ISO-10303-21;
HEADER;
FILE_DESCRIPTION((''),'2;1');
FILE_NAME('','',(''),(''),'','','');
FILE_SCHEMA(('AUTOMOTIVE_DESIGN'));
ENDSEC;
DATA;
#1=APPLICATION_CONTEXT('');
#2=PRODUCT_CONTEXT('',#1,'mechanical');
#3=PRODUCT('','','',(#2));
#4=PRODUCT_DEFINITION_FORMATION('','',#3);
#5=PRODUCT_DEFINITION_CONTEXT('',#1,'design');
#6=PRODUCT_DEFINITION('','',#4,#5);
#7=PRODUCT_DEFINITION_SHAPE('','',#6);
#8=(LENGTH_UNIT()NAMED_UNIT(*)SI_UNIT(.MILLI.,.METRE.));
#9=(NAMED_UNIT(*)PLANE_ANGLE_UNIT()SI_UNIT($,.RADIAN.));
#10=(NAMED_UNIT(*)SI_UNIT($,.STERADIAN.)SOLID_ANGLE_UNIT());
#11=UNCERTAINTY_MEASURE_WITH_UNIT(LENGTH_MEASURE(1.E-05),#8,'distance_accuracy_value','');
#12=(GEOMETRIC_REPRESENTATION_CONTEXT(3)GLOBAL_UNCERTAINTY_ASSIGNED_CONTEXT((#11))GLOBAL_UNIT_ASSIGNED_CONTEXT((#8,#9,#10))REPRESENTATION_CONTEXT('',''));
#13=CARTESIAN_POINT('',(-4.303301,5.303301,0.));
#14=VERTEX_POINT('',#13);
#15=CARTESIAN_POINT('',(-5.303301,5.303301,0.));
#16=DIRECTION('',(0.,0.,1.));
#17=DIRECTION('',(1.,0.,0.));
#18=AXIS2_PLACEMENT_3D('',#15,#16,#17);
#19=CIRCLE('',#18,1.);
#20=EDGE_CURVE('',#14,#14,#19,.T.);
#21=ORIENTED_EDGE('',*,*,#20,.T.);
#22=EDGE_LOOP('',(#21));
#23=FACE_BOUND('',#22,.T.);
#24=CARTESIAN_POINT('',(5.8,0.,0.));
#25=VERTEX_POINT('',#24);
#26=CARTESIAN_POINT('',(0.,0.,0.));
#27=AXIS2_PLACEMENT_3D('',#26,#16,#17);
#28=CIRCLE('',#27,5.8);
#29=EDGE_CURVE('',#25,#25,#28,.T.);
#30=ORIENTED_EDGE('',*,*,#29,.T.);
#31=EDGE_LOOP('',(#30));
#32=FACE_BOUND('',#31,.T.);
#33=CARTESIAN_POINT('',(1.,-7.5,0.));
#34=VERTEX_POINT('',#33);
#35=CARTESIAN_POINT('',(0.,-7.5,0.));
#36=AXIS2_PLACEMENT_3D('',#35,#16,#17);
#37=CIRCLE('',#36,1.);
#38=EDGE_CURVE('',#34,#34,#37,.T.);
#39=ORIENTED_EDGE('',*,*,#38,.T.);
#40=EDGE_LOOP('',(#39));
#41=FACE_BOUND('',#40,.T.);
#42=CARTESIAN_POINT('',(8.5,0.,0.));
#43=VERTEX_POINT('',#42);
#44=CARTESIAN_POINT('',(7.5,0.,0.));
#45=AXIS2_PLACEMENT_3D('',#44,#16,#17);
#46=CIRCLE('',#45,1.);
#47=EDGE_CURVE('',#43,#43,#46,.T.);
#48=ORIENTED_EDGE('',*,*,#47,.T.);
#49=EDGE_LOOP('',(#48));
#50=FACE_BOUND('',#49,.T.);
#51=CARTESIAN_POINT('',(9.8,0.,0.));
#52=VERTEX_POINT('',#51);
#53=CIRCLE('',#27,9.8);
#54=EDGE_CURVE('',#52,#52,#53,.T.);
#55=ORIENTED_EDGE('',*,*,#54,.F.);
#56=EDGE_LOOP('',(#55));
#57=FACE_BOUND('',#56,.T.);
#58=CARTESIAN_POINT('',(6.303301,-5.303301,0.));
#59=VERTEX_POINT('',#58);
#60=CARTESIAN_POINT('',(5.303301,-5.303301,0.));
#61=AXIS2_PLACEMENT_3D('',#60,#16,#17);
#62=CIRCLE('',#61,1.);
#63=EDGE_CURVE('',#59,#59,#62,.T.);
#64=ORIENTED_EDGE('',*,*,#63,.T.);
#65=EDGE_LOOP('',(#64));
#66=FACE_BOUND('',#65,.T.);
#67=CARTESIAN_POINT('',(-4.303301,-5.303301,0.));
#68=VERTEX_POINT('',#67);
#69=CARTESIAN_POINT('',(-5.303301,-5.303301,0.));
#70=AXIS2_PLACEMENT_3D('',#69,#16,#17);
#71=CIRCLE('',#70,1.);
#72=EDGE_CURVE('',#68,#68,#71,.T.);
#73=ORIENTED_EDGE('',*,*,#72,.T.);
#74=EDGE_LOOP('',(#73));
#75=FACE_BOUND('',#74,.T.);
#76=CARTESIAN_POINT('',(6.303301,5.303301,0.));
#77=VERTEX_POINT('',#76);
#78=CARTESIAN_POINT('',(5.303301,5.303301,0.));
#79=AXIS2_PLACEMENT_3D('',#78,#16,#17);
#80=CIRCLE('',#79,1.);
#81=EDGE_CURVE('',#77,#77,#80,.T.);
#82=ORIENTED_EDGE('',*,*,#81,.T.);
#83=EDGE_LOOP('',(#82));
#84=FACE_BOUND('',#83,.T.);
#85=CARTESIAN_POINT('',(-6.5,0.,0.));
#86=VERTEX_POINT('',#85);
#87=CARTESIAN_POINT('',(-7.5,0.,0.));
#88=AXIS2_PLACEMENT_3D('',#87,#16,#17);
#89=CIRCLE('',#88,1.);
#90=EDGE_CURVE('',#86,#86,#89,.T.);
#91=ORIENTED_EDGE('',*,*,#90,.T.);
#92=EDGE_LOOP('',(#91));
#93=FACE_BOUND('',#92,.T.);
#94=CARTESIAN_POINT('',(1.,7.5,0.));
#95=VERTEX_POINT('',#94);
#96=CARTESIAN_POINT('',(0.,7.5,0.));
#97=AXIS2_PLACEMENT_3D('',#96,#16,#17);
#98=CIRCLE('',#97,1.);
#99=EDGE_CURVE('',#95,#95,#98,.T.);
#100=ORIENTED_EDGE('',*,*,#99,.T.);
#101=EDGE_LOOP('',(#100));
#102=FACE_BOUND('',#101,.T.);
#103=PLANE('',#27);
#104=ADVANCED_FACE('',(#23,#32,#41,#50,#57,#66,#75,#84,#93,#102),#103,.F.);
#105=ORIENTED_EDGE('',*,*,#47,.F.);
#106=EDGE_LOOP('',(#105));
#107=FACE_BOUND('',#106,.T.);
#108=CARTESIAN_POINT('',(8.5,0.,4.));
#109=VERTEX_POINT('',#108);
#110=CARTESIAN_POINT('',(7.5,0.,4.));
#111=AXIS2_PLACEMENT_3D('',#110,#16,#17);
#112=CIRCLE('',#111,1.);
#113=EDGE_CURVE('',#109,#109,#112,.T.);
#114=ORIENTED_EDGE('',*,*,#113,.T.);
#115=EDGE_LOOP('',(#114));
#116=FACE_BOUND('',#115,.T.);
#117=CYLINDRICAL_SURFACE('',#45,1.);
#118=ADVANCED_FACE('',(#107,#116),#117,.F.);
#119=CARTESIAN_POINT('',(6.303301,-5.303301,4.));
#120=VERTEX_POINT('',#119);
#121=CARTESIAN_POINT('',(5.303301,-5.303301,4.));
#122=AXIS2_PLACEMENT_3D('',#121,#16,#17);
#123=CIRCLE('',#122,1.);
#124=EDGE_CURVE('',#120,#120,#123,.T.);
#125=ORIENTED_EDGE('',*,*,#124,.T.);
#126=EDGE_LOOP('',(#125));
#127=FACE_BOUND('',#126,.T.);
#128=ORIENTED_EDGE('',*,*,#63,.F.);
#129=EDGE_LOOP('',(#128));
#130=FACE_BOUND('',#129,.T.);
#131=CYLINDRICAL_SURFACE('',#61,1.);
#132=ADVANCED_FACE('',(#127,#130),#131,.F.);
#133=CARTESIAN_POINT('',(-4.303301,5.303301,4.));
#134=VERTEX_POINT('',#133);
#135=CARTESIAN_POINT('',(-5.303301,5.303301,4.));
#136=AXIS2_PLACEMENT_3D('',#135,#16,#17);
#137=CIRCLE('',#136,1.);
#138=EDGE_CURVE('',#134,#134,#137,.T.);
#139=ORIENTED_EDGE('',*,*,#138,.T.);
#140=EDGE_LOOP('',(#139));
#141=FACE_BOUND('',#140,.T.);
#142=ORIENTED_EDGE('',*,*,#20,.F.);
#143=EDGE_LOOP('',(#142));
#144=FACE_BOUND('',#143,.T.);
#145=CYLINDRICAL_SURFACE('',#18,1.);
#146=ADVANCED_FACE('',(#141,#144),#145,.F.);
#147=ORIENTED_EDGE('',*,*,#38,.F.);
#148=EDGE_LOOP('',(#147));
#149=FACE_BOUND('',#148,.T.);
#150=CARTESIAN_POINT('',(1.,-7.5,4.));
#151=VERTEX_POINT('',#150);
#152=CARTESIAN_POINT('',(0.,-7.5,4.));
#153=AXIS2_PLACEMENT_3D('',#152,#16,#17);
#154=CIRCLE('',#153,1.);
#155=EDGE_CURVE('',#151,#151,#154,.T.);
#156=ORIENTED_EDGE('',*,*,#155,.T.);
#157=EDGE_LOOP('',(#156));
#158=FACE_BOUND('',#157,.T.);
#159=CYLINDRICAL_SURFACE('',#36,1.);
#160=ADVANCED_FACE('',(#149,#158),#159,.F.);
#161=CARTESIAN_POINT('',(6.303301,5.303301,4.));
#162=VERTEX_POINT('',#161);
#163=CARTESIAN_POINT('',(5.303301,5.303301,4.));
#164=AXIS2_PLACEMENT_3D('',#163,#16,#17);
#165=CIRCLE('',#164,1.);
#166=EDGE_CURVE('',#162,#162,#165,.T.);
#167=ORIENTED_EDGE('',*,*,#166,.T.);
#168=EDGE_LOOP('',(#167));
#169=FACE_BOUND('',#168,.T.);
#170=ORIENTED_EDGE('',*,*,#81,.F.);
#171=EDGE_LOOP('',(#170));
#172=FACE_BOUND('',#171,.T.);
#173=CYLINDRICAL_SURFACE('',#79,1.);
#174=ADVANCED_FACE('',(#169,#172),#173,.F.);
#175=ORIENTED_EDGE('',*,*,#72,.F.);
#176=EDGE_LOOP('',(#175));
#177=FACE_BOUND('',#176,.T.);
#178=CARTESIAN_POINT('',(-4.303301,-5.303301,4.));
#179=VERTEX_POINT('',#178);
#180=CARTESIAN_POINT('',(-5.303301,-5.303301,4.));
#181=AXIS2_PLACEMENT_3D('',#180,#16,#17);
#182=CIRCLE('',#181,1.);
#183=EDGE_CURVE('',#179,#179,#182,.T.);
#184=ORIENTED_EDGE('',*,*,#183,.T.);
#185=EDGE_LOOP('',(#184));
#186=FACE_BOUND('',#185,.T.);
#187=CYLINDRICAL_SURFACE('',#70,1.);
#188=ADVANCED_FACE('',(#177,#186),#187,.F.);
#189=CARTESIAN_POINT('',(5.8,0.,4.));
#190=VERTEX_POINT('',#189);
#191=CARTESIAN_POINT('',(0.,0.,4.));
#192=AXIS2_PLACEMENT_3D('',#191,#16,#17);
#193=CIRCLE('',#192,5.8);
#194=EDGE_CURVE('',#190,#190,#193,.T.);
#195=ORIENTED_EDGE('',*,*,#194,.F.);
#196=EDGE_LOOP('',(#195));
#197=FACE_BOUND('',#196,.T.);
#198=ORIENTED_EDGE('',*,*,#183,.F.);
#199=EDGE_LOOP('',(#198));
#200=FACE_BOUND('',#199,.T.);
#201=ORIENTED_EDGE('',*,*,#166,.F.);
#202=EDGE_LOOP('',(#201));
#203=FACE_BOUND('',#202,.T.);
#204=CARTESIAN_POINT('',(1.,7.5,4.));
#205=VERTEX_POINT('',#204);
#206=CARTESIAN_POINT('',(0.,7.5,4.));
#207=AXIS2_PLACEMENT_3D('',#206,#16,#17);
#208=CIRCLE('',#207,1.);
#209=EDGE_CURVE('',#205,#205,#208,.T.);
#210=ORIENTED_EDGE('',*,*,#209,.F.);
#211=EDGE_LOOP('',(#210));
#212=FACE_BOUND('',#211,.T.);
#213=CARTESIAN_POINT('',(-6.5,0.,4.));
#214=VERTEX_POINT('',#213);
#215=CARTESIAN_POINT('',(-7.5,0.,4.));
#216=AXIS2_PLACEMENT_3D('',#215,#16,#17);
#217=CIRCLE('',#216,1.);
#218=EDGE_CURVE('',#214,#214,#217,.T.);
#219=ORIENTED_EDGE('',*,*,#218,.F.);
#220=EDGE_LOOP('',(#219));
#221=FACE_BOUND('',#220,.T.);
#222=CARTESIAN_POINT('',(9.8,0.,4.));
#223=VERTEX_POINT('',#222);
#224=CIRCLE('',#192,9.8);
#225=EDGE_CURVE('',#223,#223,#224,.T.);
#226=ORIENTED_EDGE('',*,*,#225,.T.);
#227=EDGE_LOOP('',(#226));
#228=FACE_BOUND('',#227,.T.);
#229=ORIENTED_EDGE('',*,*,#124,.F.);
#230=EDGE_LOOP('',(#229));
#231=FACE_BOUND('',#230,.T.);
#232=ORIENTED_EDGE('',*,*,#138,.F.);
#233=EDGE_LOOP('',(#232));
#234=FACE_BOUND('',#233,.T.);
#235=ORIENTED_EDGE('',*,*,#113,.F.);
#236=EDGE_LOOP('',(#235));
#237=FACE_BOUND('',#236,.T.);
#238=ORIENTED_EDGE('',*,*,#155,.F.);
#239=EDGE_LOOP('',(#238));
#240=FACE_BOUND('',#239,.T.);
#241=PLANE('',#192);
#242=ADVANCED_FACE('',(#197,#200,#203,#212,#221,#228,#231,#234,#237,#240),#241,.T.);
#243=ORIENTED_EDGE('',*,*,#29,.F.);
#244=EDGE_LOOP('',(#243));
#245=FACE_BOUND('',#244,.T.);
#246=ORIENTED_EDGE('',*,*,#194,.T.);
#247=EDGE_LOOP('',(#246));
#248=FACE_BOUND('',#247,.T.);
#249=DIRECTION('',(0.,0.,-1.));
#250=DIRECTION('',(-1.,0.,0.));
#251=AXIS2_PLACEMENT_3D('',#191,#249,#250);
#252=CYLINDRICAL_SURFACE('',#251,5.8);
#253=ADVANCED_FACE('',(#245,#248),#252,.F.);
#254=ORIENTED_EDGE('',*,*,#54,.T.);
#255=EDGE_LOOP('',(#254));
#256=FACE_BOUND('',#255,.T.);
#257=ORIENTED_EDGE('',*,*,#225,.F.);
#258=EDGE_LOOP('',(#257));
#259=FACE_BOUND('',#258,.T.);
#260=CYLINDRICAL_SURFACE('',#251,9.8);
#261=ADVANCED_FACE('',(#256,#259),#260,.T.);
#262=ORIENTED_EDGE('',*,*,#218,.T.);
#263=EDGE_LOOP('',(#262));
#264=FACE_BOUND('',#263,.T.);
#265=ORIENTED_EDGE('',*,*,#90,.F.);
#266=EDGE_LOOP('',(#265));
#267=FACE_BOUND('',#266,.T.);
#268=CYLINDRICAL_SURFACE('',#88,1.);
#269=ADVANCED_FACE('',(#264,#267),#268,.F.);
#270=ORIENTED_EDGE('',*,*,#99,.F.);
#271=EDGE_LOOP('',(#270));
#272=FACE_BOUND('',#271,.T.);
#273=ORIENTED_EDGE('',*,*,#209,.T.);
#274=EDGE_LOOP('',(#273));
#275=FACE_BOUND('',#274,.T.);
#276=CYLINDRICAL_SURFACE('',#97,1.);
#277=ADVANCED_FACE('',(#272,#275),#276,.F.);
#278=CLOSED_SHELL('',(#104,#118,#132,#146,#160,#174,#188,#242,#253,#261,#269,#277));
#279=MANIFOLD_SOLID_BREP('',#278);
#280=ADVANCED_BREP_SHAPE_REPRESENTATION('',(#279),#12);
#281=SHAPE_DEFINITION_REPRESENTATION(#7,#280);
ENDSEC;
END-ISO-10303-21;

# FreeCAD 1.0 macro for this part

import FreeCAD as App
import Part
import Sketcher
Q = App.Units.Quantity

doc = App.newDocument("Part")
body = doc.addObject("PartDesign::Body", "Body")

sketch1 = body.newObject("Sketcher::SketchObject", "Sketch")
sketch1.AttachmentSupport = (doc.getObject("XY_Plane"), [""])
sketch1.MapMode = "FlatFace"
sketch1.addGeometry([
    Part.Circle(App.Vector(0, 0, 0), App.Vector(0, 0, 1), 9.8),
    Part.Circle(App.Vector(0, 0, 0), App.Vector(0, 0, 1), 5.8),
], False)
sketch1.addConstraint([
    Sketcher.Constraint("Coincident", 0, 3, -1, 1),
    Sketcher.Constraint("Coincident", 1, 3, -1, 1),
    Sketcher.Constraint("Diameter", 0, Q("19.6 mm")),
    Sketcher.Constraint("Diameter", 1, Q("11.6 mm")),
])
pad1 = body.newObject("PartDesign::Pad", "Pad")
pad1.Profile = sketch1
pad1.Length = 4

sketch2 = body.newObject("Sketcher::SketchObject", "Sketch001")
sketch2.AttachmentSupport = (doc.getObject("XY_Plane"), [""])
sketch2.MapMode = "FlatFace"
sketch2.AttachmentOffset = App.Placement(App.Vector(0, 0, 4), App.Rotation())
sketch2.addGeometry([
    Part.Circle(App.Vector(0, 7.5, 0), App.Vector(0, 0, 1), 1),
    Part.Circle(App.Vector(7.5, 0, 0), App.Vector(0, 0, 1), 1),
    Part.Circle(App.Vector(0, -7.5, 0), App.Vector(0, 0, 1), 1),
    Part.Circle(App.Vector(-7.5, 0, 0), App.Vector(0, 0, 1), 1),
    Part.Circle(App.Vector(-5.303301, 5.303301, 0), App.Vector(0, 0, 1), 1),
    Part.Circle(App.Vector(5.303301, 5.303301, 0), App.Vector(0, 0, 1), 1),
    Part.Circle(App.Vector(5.303301, -5.303301, 0), App.Vector(0, 0, 1), 1),
    Part.Circle(App.Vector(-5.303301, -5.303301, 0), App.Vector(0, 0, 1), 1),
], False)
sketch2.addConstraint([
    Sketcher.Constraint("Equal", 0, 1),
    Sketcher.Constraint("Equal", 1, 2),
    Sketcher.Constraint("Equal", 2, 3),
    Sketcher.Constraint("Equal", 3, 4),
    Sketcher.Constraint("Equal", 4, 5),
    Sketcher.Constraint("Equal", 5, 6),
    Sketcher.Constraint("Equal", 6, 7),
    Sketcher.Constraint("Symmetric", 0, 3, 2, 3, -1, 1),
    Sketcher.Constraint("Symmetric", 1, 3, 3, 3, -1, 1),
    Sketcher.Constraint("Symmetric", 4, 3, 6, 3, -1, 1),
    Sketcher.Constraint("Symmetric", 5, 3, 7, 3, -1, 1),
    Sketcher.Constraint("Symmetric", 4, 3, 5, 3, -2),
    Sketcher.Constraint("PointOnObject", 0, 3, -2),
    Sketcher.Constraint("PointOnObject", 1, 3, -1),
    Sketcher.Constraint("Diameter", 0, Q("2 mm")),
    Sketcher.Constraint("DistanceY", 2, 3, 0, 3, Q("15 mm")),
    Sketcher.Constraint("DistanceX", 3, 3, 1, 3, Q("15 mm")),
    Sketcher.Constraint("DistanceX", 4, 3, -1, 1, Q("5.303301 mm")),
    Sketcher.Constraint("DistanceY", -1, 1, 4, 3, Q("5.303301 mm")),
])
pocket1 = body.newObject("PartDesign::Pocket", "Pocket")
pocket1.Profile = sketch2
pocket1.Type = "ThroughAll"

doc.recompute()
